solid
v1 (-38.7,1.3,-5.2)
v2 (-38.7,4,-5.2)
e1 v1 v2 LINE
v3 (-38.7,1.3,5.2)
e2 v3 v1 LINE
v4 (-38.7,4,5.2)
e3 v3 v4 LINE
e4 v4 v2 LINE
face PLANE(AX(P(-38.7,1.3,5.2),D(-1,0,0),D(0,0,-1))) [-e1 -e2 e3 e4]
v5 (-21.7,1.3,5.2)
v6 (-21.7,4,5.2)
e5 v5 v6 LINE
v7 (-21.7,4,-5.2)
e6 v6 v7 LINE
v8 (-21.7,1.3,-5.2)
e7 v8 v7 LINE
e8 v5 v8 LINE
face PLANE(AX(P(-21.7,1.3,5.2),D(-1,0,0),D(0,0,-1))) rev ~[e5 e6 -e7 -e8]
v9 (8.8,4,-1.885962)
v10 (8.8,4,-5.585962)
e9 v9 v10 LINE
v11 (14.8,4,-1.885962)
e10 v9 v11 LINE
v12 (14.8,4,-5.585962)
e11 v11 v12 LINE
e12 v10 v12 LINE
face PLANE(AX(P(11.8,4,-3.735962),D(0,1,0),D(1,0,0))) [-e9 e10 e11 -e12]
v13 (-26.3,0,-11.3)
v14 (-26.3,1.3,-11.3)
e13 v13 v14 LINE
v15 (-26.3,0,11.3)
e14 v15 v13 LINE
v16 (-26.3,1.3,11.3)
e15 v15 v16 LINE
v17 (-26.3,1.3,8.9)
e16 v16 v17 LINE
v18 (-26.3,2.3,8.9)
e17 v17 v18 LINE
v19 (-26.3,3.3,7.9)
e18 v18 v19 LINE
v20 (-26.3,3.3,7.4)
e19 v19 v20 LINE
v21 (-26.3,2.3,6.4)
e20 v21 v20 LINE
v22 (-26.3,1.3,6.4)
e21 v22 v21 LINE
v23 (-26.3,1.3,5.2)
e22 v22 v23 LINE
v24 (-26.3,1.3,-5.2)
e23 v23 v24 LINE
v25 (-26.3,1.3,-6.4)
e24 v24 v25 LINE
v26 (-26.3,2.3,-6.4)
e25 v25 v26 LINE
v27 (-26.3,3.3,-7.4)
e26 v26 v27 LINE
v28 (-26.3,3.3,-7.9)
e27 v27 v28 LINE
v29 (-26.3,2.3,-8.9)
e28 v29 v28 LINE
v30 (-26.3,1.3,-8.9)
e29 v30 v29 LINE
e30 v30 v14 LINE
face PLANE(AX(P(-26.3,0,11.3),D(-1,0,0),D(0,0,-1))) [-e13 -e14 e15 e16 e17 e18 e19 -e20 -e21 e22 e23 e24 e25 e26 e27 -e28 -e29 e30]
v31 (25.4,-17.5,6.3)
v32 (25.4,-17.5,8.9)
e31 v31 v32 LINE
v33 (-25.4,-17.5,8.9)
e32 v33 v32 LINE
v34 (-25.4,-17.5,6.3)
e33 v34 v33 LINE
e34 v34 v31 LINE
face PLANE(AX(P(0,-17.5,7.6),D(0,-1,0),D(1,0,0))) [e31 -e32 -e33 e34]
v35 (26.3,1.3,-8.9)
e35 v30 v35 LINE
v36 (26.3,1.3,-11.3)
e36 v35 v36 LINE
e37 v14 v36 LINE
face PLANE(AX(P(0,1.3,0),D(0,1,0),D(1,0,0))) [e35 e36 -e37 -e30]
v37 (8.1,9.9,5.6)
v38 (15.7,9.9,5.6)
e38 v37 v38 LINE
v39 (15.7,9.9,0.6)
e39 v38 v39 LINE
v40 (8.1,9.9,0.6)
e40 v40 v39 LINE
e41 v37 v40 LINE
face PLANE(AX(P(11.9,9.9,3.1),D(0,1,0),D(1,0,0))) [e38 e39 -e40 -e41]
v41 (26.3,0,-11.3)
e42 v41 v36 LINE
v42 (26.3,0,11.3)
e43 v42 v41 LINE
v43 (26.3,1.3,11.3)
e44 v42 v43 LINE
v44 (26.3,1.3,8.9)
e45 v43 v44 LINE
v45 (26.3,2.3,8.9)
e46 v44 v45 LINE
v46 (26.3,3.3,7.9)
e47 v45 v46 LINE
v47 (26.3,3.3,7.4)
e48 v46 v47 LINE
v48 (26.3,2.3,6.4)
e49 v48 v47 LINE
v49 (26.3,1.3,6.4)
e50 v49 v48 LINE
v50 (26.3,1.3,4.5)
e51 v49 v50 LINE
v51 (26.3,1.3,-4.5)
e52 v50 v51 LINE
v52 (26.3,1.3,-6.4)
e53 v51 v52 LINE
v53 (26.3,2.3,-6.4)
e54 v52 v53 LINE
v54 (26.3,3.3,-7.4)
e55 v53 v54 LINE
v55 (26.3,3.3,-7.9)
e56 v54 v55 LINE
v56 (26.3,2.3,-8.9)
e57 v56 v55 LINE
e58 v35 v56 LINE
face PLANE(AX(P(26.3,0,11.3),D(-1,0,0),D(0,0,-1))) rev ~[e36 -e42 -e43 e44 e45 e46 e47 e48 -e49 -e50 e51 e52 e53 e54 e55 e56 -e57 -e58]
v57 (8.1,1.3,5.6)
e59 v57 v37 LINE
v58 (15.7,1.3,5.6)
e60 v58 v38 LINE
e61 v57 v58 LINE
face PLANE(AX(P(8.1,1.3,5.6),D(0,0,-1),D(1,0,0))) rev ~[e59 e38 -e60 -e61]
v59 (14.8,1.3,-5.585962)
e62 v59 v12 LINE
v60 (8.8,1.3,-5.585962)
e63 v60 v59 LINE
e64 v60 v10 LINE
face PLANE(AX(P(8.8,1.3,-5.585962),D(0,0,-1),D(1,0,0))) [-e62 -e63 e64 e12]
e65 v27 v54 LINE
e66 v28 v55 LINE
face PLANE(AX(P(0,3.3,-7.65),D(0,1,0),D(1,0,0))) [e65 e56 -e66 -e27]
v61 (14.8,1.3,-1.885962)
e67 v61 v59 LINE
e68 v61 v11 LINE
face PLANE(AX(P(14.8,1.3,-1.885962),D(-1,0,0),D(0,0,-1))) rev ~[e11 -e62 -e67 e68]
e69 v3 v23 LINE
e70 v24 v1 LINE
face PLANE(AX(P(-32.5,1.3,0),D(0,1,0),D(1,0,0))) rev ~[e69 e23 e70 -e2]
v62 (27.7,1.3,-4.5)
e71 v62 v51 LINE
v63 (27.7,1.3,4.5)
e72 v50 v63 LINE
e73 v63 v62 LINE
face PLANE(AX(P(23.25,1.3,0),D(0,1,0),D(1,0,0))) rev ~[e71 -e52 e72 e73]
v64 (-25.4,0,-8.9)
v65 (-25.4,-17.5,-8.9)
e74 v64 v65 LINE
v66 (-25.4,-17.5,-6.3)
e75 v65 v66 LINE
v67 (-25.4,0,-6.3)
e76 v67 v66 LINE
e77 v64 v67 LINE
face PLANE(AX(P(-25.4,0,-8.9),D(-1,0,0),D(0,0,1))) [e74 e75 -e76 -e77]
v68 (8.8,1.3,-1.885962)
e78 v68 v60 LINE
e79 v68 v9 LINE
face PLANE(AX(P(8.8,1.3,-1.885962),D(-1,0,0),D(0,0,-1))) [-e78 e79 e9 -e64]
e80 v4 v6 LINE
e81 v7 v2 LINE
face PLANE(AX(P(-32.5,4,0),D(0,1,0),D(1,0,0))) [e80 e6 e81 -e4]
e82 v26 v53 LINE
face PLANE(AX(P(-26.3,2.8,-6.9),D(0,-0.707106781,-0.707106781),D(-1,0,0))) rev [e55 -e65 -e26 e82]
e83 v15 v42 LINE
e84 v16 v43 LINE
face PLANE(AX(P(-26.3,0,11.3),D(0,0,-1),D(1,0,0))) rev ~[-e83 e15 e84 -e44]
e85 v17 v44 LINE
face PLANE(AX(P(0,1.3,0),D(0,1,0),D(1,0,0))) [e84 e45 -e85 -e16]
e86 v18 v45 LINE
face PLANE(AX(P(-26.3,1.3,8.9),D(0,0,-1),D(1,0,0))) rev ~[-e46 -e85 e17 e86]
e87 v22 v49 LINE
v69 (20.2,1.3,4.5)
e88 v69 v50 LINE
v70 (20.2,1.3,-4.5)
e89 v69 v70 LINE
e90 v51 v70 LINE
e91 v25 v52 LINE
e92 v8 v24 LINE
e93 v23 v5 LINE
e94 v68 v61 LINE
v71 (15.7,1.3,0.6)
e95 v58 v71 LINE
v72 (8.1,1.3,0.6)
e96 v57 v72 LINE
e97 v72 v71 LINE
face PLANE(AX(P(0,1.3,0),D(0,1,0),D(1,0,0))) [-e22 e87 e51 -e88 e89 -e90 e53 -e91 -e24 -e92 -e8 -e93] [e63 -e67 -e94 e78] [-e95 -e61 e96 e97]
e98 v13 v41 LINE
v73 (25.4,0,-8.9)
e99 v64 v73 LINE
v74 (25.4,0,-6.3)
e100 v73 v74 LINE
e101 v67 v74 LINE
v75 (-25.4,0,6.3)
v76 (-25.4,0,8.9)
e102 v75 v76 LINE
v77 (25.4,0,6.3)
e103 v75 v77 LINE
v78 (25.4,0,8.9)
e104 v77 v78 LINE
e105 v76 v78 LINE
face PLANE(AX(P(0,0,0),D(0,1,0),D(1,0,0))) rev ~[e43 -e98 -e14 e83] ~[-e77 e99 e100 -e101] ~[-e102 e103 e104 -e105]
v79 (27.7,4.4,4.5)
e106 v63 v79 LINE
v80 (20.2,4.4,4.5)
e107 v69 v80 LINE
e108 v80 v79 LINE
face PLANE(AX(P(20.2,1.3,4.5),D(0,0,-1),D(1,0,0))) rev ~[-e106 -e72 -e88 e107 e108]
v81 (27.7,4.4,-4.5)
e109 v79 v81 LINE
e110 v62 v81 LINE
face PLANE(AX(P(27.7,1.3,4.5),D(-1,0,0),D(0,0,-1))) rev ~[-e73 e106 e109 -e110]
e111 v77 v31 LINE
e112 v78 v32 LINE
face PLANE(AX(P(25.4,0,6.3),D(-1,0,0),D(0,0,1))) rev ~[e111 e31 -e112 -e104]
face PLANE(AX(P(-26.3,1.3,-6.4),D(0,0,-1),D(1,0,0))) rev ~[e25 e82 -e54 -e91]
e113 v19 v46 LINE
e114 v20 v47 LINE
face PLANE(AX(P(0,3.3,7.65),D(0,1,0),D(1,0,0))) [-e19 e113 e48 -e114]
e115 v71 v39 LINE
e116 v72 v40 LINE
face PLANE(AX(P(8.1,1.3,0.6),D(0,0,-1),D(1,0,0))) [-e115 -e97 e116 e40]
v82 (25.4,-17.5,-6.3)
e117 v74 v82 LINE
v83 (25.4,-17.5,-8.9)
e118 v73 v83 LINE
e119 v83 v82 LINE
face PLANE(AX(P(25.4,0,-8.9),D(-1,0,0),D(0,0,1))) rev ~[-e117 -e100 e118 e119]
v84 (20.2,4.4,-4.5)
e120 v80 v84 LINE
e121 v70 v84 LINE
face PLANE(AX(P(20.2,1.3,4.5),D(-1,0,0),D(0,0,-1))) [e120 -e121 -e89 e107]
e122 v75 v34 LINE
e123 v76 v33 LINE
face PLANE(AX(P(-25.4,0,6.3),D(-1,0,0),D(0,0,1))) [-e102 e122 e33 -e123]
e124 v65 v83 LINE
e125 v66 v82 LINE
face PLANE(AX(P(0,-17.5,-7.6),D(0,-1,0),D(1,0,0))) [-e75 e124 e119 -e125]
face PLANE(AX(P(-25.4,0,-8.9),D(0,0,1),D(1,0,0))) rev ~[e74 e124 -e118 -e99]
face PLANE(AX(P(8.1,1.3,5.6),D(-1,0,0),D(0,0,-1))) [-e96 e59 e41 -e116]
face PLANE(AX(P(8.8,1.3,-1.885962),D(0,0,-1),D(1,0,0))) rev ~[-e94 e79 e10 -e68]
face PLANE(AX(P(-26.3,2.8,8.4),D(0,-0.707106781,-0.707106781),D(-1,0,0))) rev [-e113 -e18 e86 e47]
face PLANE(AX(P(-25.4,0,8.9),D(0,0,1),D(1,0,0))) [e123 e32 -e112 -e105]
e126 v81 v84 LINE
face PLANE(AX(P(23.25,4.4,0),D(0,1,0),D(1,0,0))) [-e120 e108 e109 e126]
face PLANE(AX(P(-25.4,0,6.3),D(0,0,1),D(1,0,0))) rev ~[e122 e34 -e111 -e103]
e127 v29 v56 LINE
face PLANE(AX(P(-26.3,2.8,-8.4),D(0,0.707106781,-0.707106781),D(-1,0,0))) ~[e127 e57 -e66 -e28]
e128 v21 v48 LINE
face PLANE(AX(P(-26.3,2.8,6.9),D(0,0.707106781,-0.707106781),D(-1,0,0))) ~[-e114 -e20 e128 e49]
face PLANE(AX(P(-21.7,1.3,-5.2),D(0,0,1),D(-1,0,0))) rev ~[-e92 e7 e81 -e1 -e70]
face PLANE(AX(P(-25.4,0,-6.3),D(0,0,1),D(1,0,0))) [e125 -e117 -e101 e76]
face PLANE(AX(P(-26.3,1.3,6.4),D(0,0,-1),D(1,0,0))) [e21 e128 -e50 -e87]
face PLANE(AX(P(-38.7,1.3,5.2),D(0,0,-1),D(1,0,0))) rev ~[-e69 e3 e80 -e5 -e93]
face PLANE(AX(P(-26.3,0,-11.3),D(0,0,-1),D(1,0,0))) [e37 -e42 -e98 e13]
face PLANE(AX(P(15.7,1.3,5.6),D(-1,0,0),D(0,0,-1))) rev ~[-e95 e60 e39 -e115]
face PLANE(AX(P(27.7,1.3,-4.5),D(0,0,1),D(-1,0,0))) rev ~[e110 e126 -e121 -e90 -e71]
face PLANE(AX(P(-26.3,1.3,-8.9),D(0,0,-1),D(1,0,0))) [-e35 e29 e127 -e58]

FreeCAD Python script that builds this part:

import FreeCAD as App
import Part
import Sketcher

V = App.Vector
Q = App.Units.Quantity


def edges_at(feature, points):
    """Names of the edges that pass closest to the given points."""
    edges = feature.Shape.Edges
    near = lambda p: min(range(len(edges)), key=lambda i: edges[i].distToShape(Part.Vertex(*p))[0])
    return sorted({f"Edge{near(p) + 1}" for p in points})

doc = App.newDocument("Part")
body = doc.addObject("PartDesign::Body", "Body")

sketch1 = body.newObject("Sketcher::SketchObject", "Sketch")
sketch1.AttachmentSupport = (doc.getObject("XZ_Plane"), [""])
sketch1.MapMode = "FlatFace"
sketch1.addGeometry(Part.LineSegment(V(-26.3, -11.3, 0), V(-26.3, 11.3, 0)), False)
sketch1.addGeometry(Part.LineSegment(V(-26.3, 11.3, 0), V(26.3, 11.3, 0)), False)
sketch1.addGeometry(Part.LineSegment(V(26.3, 11.3, 0), V(26.3, -11.3, 0)), False)
sketch1.addGeometry(Part.LineSegment(V(26.3, -11.3, 0), V(-26.3, -11.3, 0)), False)
sketch1.addConstraint(Sketcher.Constraint("Coincident", 0, 2, 1, 1))
sketch1.addConstraint(Sketcher.Constraint("Coincident", 1, 2, 2, 1))
sketch1.addConstraint(Sketcher.Constraint("Coincident", 2, 2, 3, 1))
sketch1.addConstraint(Sketcher.Constraint("Coincident", 3, 2, 0, 1))
sketch1.addConstraint(Sketcher.Constraint("Vertical", 0))
sketch1.addConstraint(Sketcher.Constraint("Horizontal", 1))
sketch1.addConstraint(Sketcher.Constraint("Vertical", 2))
sketch1.addConstraint(Sketcher.Constraint("Horizontal", 3))
sketch1.addConstraint(Sketcher.Constraint("Symmetric", 0, 2, 2, 2, -1, 1))
sketch1.addConstraint(Sketcher.Constraint("DistanceX", 1, 1, 1, 2, Q("52.6 mm")))
sketch1.addConstraint(Sketcher.Constraint("DistanceY", 0, 1, 0, 2, Q("22.6 mm")))
pad1 = body.newObject("PartDesign::Pad", "Pad")
pad1.Profile = sketch1
pad1.Length = 1.3
pad1.Reversed = True

sketch2 = body.newObject("Sketcher::SketchObject", "Sketch001")
sketch2.AttachmentSupport = (doc.getObject("XZ_Plane"), [""])
sketch2.MapMode = "FlatFace"
sketch2.AttachmentOffset = App.Placement(V(0, 0, -1.3), App.Rotation())
sketch2.addGeometry(Part.LineSegment(V(-26.3, -8.9, 0), V(-26.3, -6.4, 0)), False)
sketch2.addGeometry(Part.LineSegment(V(-26.3, -6.4, 0), V(26.3, -6.4, 0)), False)
sketch2.addGeometry(Part.LineSegment(V(26.3, -6.4, 0), V(26.3, -8.9, 0)), False)
sketch2.addGeometry(Part.LineSegment(V(26.3, -8.9, 0), V(-26.3, -8.9, 0)), False)
sketch2.addGeometry(Part.LineSegment(V(-26.3, 6.4, 0), V(-26.3, 8.9, 0)), False)
sketch2.addGeometry(Part.LineSegment(V(-26.3, 8.9, 0), V(26.3, 8.9, 0)), False)
sketch2.addGeometry(Part.LineSegment(V(26.3, 8.9, 0), V(26.3, 6.4, 0)), False)
sketch2.addGeometry(Part.LineSegment(V(26.3, 6.4, 0), V(-26.3, 6.4, 0)), False)
sketch2.addConstraint(Sketcher.Constraint("Coincident", 0, 2, 1, 1))
sketch2.addConstraint(Sketcher.Constraint("Coincident", 1, 2, 2, 1))
sketch2.addConstraint(Sketcher.Constraint("Coincident", 2, 2, 3, 1))
sketch2.addConstraint(Sketcher.Constraint("Coincident", 3, 2, 0, 1))
sketch2.addConstraint(Sketcher.Constraint("Coincident", 4, 2, 5, 1))
sketch2.addConstraint(Sketcher.Constraint("Coincident", 5, 2, 6, 1))
sketch2.addConstraint(Sketcher.Constraint("Coincident", 6, 2, 7, 1))
sketch2.addConstraint(Sketcher.Constraint("Coincident", 7, 2, 4, 1))
sketch2.addConstraint(Sketcher.Constraint("Vertical", 0))
sketch2.addConstraint(Sketcher.Constraint("Horizontal", 1))
sketch2.addConstraint(Sketcher.Constraint("Vertical", 2))
sketch2.addConstraint(Sketcher.Constraint("Horizontal", 3))
sketch2.addConstraint(Sketcher.Constraint("Vertical", 4))
sketch2.addConstraint(Sketcher.Constraint("Horizontal", 5))
sketch2.addConstraint(Sketcher.Constraint("Vertical", 6))
sketch2.addConstraint(Sketcher.Constraint("Horizontal", 7))
sketch2.addConstraint(Sketcher.Constraint("Symmetric", 2, 2, 4, 2, -1, 1))
sketch2.addConstraint(Sketcher.Constraint("Symmetric", 0, 2, 6, 2, -1, 1))
sketch2.addConstraint(Sketcher.Constraint("Vertical", 3, 2, 4, 2))
sketch2.addConstraint(Sketcher.Constraint("DistanceX", 1, 1, 1, 2, Q("52.6 mm")))
sketch2.addConstraint(Sketcher.Constraint("DistanceY", 0, 1, 0, 2, Q("2.5 mm")))
sketch2.addConstraint(Sketcher.Constraint("DistanceY", 0, 2, -1, 1, Q("6.4 mm")))
pad2 = body.newObject("PartDesign::Pad", "Pad001")
pad2.Profile = sketch2
pad2.Length = 2
pad2.Reversed = True
doc.recompute()

chamfer = body.newObject("PartDesign::Chamfer", "Chamfer")
chamfer.Base = (pad2, edges_at(pad2, [
    (0, 3.3, -8.9),
    (0, 3.3, -6.4),
    (0, 3.3, 6.4),
    (0, 3.3, 8.9),
]))
chamfer.Size = 1

sketch3 = body.newObject("Sketcher::SketchObject", "Sketch002")
sketch3.AttachmentSupport = (doc.getObject("XZ_Plane"), [""])
sketch3.MapMode = "FlatFace"
sketch3.AttachmentOffset = App.Placement(V(0, 0, -1.3), App.Rotation())
sketch3.addGeometry(Part.LineSegment(V(20.2, -4.5, 0), V(20.2, 4.5, 0)), False)
sketch3.addGeometry(Part.LineSegment(V(20.2, 4.5, 0), V(27.7, 4.5, 0)), False)
sketch3.addGeometry(Part.LineSegment(V(27.7, 4.5, 0), V(27.7, -4.5, 0)), False)
sketch3.addGeometry(Part.LineSegment(V(27.7, -4.5, 0), V(20.2, -4.5, 0)), False)
sketch3.addConstraint(Sketcher.Constraint("Coincident", 0, 2, 1, 1))
sketch3.addConstraint(Sketcher.Constraint("Coincident", 1, 2, 2, 1))
sketch3.addConstraint(Sketcher.Constraint("Coincident", 2, 2, 3, 1))
sketch3.addConstraint(Sketcher.Constraint("Coincident", 3, 2, 0, 1))
sketch3.addConstraint(Sketcher.Constraint("Vertical", 0))
sketch3.addConstraint(Sketcher.Constraint("Horizontal", 1))
sketch3.addConstraint(Sketcher.Constraint("Vertical", 2))
sketch3.addConstraint(Sketcher.Constraint("Horizontal", 3))
sketch3.addConstraint(Sketcher.Constraint("DistanceY", 0, 1, 0, 2, Q("9 mm")))
sketch3.addConstraint(Sketcher.Constraint("DistanceX", 1, 1, 1, 2, Q("7.5 mm")))
sketch3.addConstraint(Sketcher.Constraint("DistanceX", -1, 1, 0, 2, Q("20.2 mm")))
sketch3.addConstraint(Sketcher.Constraint("DistanceY", -1, 1, 0, 2, Q("4.5 mm")))
pad3 = body.newObject("PartDesign::Pad", "Pad002")
pad3.Profile = sketch3
pad3.Length = 3.1
pad3.Reversed = True

sketch4 = body.newObject("Sketcher::SketchObject", "Sketch003")
sketch4.AttachmentSupport = (doc.getObject("XZ_Plane"), [""])
sketch4.MapMode = "FlatFace"
sketch4.AttachmentOffset = App.Placement(V(0, 0, -1.3), App.Rotation())
sketch4.addGeometry(Part.LineSegment(V(-38.7, -5.2, 0), V(-38.7, 5.2, 0)), False)
sketch4.addGeometry(Part.LineSegment(V(-38.7, 5.2, 0), V(-21.7, 5.2, 0)), False)
sketch4.addGeometry(Part.LineSegment(V(-21.7, 5.2, 0), V(-21.7, -5.2, 0)), False)
sketch4.addGeometry(Part.LineSegment(V(-21.7, -5.2, 0), V(-38.7, -5.2, 0)), False)
sketch4.addConstraint(Sketcher.Constraint("Coincident", 0, 2, 1, 1))
sketch4.addConstraint(Sketcher.Constraint("Coincident", 1, 2, 2, 1))
sketch4.addConstraint(Sketcher.Constraint("Coincident", 2, 2, 3, 1))
sketch4.addConstraint(Sketcher.Constraint("Coincident", 3, 2, 0, 1))
sketch4.addConstraint(Sketcher.Constraint("Vertical", 0))
sketch4.addConstraint(Sketcher.Constraint("Horizontal", 1))
sketch4.addConstraint(Sketcher.Constraint("Vertical", 2))
sketch4.addConstraint(Sketcher.Constraint("Horizontal", 3))
sketch4.addConstraint(Sketcher.Constraint("DistanceX", 1, 1, 1, 2, Q("17 mm")))
sketch4.addConstraint(Sketcher.Constraint("DistanceY", 0, 1, 0, 2, Q("10.4 mm")))
sketch4.addConstraint(Sketcher.Constraint("DistanceX", 0, 2, -1, 1, Q("38.7 mm")))
sketch4.addConstraint(Sketcher.Constraint("DistanceY", -1, 1, 0, 2, Q("5.2 mm")))
pad4 = body.newObject("PartDesign::Pad", "Pad003")
pad4.Profile = sketch4
pad4.Length = 2.7
pad4.Reversed = True

sketch5 = body.newObject("Sketcher::SketchObject", "Sketch004")
sketch5.AttachmentSupport = (doc.getObject("XZ_Plane"), [""])
sketch5.MapMode = "FlatFace"
sketch5.AttachmentOffset = App.Placement(V(0, 0, -1.3), App.Rotation())
sketch5.addGeometry(Part.LineSegment(V(8.1, 0.6, 0), V(8.1, 5.6, 0)), False)
sketch5.addGeometry(Part.LineSegment(V(8.1, 5.6, 0), V(15.7, 5.6, 0)), False)
sketch5.addGeometry(Part.LineSegment(V(15.7, 5.6, 0), V(15.7, 0.6, 0)), False)
sketch5.addGeometry(Part.LineSegment(V(15.7, 0.6, 0), V(8.1, 0.6, 0)), False)
sketch5.addConstraint(Sketcher.Constraint("Coincident", 0, 2, 1, 1))
sketch5.addConstraint(Sketcher.Constraint("Coincident", 1, 2, 2, 1))
sketch5.addConstraint(Sketcher.Constraint("Coincident", 2, 2, 3, 1))
sketch5.addConstraint(Sketcher.Constraint("Coincident", 3, 2, 0, 1))
sketch5.addConstraint(Sketcher.Constraint("Vertical", 0))
sketch5.addConstraint(Sketcher.Constraint("Horizontal", 1))
sketch5.addConstraint(Sketcher.Constraint("Vertical", 2))
sketch5.addConstraint(Sketcher.Constraint("Horizontal", 3))
sketch5.addConstraint(Sketcher.Constraint("DistanceY", 0, 1, 0, 2, Q("5 mm")))
sketch5.addConstraint(Sketcher.Constraint("DistanceX", 1, 1, 1, 2, Q("7.6 mm")))
sketch5.addConstraint(Sketcher.Constraint("DistanceX", -1, 1, 0, 2, Q("8.1 mm")))
sketch5.addConstraint(Sketcher.Constraint("DistanceY", -1, 1, 0, 2, Q("5.6 mm")))
pad5 = body.newObject("PartDesign::Pad", "Pad004")
pad5.Profile = sketch5
pad5.Length = 8.6
pad5.Reversed = True

sketch6 = body.newObject("Sketcher::SketchObject", "Sketch005")
sketch6.AttachmentSupport = (doc.getObject("XZ_Plane"), [""])
sketch6.MapMode = "FlatFace"
sketch6.AttachmentOffset = App.Placement(V(0, 0, -1.3), App.Rotation())
sketch6.addGeometry(Part.LineSegment(V(8.8, -5.585962, 0), V(8.8, -1.885962, 0)), False)
sketch6.addGeometry(Part.LineSegment(V(8.8, -1.885962, 0), V(14.8, -1.885962, 0)), False)
sketch6.addGeometry(Part.LineSegment(V(14.8, -1.885962, 0), V(14.8, -5.585962, 0)), False)
sketch6.addGeometry(Part.LineSegment(V(14.8, -5.585962, 0), V(8.8, -5.585962, 0)), False)
sketch6.addConstraint(Sketcher.Constraint("Coincident", 0, 2, 1, 1))
sketch6.addConstraint(Sketcher.Constraint("Coincident", 1, 2, 2, 1))
sketch6.addConstraint(Sketcher.Constraint("Coincident", 2, 2, 3, 1))
sketch6.addConstraint(Sketcher.Constraint("Coincident", 3, 2, 0, 1))
sketch6.addConstraint(Sketcher.Constraint("Vertical", 0))
sketch6.addConstraint(Sketcher.Constraint("Horizontal", 1))
sketch6.addConstraint(Sketcher.Constraint("Vertical", 2))
sketch6.addConstraint(Sketcher.Constraint("Horizontal", 3))
sketch6.addConstraint(Sketcher.Constraint("DistanceX", 1, 1, 1, 2, Q("6 mm")))
sketch6.addConstraint(Sketcher.Constraint("DistanceY", 0, 1, 0, 2, Q("3.7 mm")))
sketch6.addConstraint(Sketcher.Constraint("DistanceX", -1, 1, 0, 2, Q("8.8 mm")))
sketch6.addConstraint(Sketcher.Constraint("DistanceY", 0, 2, -1, 1, Q("1.885962 mm")))
pad6 = body.newObject("PartDesign::Pad", "Pad005")
pad6.Profile = sketch6
pad6.Length = 2.7
pad6.Reversed = True

sketch7 = body.newObject("Sketcher::SketchObject", "Sketch006")
sketch7.AttachmentSupport = (doc.getObject("XZ_Plane"), [""])
sketch7.MapMode = "FlatFace"
sketch7.addGeometry(Part.LineSegment(V(-25.4, -6.3, 0), V(-25.4, -8.9, 0)), False)
sketch7.addGeometry(Part.LineSegment(V(-25.4, -8.9, 0), V(25.4, -8.9, 0)), False)
sketch7.addGeometry(Part.LineSegment(V(25.4, -8.9, 0), V(25.4, -6.3, 0)), False)
sketch7.addGeometry(Part.LineSegment(V(25.4, -6.3, 0), V(-25.4, -6.3, 0)), False)
sketch7.addGeometry(Part.LineSegment(V(-25.4, 8.9, 0), V(-25.4, 6.3, 0)), False)
sketch7.addGeometry(Part.LineSegment(V(-25.4, 6.3, 0), V(25.4, 6.3, 0)), False)
sketch7.addGeometry(Part.LineSegment(V(25.4, 6.3, 0), V(25.4, 8.9, 0)), False)
sketch7.addGeometry(Part.LineSegment(V(25.4, 8.9, 0), V(-25.4, 8.9, 0)), False)
sketch7.addConstraint(Sketcher.Constraint("Coincident", 0, 2, 1, 1))
sketch7.addConstraint(Sketcher.Constraint("Coincident", 1, 2, 2, 1))
sketch7.addConstraint(Sketcher.Constraint("Coincident", 2, 2, 3, 1))
sketch7.addConstraint(Sketcher.Constraint("Coincident", 3, 2, 0, 1))
sketch7.addConstraint(Sketcher.Constraint("Coincident", 4, 2, 5, 1))
sketch7.addConstraint(Sketcher.Constraint("Coincident", 5, 2, 6, 1))
sketch7.addConstraint(Sketcher.Constraint("Coincident", 6, 2, 7, 1))
sketch7.addConstraint(Sketcher.Constraint("Coincident", 7, 2, 4, 1))
sketch7.addConstraint(Sketcher.Constraint("Vertical", 0))
sketch7.addConstraint(Sketcher.Constraint("Horizontal", 1))
sketch7.addConstraint(Sketcher.Constraint("Vertical", 2))
sketch7.addConstraint(Sketcher.Constraint("Horizontal", 3))
sketch7.addConstraint(Sketcher.Constraint("Vertical", 4))
sketch7.addConstraint(Sketcher.Constraint("Horizontal", 5))
sketch7.addConstraint(Sketcher.Constraint("Vertical", 6))
sketch7.addConstraint(Sketcher.Constraint("Horizontal", 7))
sketch7.addConstraint(Sketcher.Constraint("Symmetric", 2, 2, 4, 2, -1, 1))
sketch7.addConstraint(Sketcher.Constraint("Symmetric", 0, 2, 6, 2, -1, 1))
sketch7.addConstraint(Sketcher.Constraint("Vertical", 3, 2, 4, 2))
sketch7.addConstraint(Sketcher.Constraint("DistanceX", 1, 1, 1, 2, Q("50.8 mm")))
sketch7.addConstraint(Sketcher.Constraint("DistanceY", 0, 2, 0, 1, Q("2.6 mm")))
sketch7.addConstraint(Sketcher.Constraint("DistanceY", 0, 2, -1, 1, Q("8.9 mm")))
pad7 = body.newObject("PartDesign::Pad", "Pad006")
pad7.Profile = sketch7
pad7.Length = 17.5

doc.recompute()
